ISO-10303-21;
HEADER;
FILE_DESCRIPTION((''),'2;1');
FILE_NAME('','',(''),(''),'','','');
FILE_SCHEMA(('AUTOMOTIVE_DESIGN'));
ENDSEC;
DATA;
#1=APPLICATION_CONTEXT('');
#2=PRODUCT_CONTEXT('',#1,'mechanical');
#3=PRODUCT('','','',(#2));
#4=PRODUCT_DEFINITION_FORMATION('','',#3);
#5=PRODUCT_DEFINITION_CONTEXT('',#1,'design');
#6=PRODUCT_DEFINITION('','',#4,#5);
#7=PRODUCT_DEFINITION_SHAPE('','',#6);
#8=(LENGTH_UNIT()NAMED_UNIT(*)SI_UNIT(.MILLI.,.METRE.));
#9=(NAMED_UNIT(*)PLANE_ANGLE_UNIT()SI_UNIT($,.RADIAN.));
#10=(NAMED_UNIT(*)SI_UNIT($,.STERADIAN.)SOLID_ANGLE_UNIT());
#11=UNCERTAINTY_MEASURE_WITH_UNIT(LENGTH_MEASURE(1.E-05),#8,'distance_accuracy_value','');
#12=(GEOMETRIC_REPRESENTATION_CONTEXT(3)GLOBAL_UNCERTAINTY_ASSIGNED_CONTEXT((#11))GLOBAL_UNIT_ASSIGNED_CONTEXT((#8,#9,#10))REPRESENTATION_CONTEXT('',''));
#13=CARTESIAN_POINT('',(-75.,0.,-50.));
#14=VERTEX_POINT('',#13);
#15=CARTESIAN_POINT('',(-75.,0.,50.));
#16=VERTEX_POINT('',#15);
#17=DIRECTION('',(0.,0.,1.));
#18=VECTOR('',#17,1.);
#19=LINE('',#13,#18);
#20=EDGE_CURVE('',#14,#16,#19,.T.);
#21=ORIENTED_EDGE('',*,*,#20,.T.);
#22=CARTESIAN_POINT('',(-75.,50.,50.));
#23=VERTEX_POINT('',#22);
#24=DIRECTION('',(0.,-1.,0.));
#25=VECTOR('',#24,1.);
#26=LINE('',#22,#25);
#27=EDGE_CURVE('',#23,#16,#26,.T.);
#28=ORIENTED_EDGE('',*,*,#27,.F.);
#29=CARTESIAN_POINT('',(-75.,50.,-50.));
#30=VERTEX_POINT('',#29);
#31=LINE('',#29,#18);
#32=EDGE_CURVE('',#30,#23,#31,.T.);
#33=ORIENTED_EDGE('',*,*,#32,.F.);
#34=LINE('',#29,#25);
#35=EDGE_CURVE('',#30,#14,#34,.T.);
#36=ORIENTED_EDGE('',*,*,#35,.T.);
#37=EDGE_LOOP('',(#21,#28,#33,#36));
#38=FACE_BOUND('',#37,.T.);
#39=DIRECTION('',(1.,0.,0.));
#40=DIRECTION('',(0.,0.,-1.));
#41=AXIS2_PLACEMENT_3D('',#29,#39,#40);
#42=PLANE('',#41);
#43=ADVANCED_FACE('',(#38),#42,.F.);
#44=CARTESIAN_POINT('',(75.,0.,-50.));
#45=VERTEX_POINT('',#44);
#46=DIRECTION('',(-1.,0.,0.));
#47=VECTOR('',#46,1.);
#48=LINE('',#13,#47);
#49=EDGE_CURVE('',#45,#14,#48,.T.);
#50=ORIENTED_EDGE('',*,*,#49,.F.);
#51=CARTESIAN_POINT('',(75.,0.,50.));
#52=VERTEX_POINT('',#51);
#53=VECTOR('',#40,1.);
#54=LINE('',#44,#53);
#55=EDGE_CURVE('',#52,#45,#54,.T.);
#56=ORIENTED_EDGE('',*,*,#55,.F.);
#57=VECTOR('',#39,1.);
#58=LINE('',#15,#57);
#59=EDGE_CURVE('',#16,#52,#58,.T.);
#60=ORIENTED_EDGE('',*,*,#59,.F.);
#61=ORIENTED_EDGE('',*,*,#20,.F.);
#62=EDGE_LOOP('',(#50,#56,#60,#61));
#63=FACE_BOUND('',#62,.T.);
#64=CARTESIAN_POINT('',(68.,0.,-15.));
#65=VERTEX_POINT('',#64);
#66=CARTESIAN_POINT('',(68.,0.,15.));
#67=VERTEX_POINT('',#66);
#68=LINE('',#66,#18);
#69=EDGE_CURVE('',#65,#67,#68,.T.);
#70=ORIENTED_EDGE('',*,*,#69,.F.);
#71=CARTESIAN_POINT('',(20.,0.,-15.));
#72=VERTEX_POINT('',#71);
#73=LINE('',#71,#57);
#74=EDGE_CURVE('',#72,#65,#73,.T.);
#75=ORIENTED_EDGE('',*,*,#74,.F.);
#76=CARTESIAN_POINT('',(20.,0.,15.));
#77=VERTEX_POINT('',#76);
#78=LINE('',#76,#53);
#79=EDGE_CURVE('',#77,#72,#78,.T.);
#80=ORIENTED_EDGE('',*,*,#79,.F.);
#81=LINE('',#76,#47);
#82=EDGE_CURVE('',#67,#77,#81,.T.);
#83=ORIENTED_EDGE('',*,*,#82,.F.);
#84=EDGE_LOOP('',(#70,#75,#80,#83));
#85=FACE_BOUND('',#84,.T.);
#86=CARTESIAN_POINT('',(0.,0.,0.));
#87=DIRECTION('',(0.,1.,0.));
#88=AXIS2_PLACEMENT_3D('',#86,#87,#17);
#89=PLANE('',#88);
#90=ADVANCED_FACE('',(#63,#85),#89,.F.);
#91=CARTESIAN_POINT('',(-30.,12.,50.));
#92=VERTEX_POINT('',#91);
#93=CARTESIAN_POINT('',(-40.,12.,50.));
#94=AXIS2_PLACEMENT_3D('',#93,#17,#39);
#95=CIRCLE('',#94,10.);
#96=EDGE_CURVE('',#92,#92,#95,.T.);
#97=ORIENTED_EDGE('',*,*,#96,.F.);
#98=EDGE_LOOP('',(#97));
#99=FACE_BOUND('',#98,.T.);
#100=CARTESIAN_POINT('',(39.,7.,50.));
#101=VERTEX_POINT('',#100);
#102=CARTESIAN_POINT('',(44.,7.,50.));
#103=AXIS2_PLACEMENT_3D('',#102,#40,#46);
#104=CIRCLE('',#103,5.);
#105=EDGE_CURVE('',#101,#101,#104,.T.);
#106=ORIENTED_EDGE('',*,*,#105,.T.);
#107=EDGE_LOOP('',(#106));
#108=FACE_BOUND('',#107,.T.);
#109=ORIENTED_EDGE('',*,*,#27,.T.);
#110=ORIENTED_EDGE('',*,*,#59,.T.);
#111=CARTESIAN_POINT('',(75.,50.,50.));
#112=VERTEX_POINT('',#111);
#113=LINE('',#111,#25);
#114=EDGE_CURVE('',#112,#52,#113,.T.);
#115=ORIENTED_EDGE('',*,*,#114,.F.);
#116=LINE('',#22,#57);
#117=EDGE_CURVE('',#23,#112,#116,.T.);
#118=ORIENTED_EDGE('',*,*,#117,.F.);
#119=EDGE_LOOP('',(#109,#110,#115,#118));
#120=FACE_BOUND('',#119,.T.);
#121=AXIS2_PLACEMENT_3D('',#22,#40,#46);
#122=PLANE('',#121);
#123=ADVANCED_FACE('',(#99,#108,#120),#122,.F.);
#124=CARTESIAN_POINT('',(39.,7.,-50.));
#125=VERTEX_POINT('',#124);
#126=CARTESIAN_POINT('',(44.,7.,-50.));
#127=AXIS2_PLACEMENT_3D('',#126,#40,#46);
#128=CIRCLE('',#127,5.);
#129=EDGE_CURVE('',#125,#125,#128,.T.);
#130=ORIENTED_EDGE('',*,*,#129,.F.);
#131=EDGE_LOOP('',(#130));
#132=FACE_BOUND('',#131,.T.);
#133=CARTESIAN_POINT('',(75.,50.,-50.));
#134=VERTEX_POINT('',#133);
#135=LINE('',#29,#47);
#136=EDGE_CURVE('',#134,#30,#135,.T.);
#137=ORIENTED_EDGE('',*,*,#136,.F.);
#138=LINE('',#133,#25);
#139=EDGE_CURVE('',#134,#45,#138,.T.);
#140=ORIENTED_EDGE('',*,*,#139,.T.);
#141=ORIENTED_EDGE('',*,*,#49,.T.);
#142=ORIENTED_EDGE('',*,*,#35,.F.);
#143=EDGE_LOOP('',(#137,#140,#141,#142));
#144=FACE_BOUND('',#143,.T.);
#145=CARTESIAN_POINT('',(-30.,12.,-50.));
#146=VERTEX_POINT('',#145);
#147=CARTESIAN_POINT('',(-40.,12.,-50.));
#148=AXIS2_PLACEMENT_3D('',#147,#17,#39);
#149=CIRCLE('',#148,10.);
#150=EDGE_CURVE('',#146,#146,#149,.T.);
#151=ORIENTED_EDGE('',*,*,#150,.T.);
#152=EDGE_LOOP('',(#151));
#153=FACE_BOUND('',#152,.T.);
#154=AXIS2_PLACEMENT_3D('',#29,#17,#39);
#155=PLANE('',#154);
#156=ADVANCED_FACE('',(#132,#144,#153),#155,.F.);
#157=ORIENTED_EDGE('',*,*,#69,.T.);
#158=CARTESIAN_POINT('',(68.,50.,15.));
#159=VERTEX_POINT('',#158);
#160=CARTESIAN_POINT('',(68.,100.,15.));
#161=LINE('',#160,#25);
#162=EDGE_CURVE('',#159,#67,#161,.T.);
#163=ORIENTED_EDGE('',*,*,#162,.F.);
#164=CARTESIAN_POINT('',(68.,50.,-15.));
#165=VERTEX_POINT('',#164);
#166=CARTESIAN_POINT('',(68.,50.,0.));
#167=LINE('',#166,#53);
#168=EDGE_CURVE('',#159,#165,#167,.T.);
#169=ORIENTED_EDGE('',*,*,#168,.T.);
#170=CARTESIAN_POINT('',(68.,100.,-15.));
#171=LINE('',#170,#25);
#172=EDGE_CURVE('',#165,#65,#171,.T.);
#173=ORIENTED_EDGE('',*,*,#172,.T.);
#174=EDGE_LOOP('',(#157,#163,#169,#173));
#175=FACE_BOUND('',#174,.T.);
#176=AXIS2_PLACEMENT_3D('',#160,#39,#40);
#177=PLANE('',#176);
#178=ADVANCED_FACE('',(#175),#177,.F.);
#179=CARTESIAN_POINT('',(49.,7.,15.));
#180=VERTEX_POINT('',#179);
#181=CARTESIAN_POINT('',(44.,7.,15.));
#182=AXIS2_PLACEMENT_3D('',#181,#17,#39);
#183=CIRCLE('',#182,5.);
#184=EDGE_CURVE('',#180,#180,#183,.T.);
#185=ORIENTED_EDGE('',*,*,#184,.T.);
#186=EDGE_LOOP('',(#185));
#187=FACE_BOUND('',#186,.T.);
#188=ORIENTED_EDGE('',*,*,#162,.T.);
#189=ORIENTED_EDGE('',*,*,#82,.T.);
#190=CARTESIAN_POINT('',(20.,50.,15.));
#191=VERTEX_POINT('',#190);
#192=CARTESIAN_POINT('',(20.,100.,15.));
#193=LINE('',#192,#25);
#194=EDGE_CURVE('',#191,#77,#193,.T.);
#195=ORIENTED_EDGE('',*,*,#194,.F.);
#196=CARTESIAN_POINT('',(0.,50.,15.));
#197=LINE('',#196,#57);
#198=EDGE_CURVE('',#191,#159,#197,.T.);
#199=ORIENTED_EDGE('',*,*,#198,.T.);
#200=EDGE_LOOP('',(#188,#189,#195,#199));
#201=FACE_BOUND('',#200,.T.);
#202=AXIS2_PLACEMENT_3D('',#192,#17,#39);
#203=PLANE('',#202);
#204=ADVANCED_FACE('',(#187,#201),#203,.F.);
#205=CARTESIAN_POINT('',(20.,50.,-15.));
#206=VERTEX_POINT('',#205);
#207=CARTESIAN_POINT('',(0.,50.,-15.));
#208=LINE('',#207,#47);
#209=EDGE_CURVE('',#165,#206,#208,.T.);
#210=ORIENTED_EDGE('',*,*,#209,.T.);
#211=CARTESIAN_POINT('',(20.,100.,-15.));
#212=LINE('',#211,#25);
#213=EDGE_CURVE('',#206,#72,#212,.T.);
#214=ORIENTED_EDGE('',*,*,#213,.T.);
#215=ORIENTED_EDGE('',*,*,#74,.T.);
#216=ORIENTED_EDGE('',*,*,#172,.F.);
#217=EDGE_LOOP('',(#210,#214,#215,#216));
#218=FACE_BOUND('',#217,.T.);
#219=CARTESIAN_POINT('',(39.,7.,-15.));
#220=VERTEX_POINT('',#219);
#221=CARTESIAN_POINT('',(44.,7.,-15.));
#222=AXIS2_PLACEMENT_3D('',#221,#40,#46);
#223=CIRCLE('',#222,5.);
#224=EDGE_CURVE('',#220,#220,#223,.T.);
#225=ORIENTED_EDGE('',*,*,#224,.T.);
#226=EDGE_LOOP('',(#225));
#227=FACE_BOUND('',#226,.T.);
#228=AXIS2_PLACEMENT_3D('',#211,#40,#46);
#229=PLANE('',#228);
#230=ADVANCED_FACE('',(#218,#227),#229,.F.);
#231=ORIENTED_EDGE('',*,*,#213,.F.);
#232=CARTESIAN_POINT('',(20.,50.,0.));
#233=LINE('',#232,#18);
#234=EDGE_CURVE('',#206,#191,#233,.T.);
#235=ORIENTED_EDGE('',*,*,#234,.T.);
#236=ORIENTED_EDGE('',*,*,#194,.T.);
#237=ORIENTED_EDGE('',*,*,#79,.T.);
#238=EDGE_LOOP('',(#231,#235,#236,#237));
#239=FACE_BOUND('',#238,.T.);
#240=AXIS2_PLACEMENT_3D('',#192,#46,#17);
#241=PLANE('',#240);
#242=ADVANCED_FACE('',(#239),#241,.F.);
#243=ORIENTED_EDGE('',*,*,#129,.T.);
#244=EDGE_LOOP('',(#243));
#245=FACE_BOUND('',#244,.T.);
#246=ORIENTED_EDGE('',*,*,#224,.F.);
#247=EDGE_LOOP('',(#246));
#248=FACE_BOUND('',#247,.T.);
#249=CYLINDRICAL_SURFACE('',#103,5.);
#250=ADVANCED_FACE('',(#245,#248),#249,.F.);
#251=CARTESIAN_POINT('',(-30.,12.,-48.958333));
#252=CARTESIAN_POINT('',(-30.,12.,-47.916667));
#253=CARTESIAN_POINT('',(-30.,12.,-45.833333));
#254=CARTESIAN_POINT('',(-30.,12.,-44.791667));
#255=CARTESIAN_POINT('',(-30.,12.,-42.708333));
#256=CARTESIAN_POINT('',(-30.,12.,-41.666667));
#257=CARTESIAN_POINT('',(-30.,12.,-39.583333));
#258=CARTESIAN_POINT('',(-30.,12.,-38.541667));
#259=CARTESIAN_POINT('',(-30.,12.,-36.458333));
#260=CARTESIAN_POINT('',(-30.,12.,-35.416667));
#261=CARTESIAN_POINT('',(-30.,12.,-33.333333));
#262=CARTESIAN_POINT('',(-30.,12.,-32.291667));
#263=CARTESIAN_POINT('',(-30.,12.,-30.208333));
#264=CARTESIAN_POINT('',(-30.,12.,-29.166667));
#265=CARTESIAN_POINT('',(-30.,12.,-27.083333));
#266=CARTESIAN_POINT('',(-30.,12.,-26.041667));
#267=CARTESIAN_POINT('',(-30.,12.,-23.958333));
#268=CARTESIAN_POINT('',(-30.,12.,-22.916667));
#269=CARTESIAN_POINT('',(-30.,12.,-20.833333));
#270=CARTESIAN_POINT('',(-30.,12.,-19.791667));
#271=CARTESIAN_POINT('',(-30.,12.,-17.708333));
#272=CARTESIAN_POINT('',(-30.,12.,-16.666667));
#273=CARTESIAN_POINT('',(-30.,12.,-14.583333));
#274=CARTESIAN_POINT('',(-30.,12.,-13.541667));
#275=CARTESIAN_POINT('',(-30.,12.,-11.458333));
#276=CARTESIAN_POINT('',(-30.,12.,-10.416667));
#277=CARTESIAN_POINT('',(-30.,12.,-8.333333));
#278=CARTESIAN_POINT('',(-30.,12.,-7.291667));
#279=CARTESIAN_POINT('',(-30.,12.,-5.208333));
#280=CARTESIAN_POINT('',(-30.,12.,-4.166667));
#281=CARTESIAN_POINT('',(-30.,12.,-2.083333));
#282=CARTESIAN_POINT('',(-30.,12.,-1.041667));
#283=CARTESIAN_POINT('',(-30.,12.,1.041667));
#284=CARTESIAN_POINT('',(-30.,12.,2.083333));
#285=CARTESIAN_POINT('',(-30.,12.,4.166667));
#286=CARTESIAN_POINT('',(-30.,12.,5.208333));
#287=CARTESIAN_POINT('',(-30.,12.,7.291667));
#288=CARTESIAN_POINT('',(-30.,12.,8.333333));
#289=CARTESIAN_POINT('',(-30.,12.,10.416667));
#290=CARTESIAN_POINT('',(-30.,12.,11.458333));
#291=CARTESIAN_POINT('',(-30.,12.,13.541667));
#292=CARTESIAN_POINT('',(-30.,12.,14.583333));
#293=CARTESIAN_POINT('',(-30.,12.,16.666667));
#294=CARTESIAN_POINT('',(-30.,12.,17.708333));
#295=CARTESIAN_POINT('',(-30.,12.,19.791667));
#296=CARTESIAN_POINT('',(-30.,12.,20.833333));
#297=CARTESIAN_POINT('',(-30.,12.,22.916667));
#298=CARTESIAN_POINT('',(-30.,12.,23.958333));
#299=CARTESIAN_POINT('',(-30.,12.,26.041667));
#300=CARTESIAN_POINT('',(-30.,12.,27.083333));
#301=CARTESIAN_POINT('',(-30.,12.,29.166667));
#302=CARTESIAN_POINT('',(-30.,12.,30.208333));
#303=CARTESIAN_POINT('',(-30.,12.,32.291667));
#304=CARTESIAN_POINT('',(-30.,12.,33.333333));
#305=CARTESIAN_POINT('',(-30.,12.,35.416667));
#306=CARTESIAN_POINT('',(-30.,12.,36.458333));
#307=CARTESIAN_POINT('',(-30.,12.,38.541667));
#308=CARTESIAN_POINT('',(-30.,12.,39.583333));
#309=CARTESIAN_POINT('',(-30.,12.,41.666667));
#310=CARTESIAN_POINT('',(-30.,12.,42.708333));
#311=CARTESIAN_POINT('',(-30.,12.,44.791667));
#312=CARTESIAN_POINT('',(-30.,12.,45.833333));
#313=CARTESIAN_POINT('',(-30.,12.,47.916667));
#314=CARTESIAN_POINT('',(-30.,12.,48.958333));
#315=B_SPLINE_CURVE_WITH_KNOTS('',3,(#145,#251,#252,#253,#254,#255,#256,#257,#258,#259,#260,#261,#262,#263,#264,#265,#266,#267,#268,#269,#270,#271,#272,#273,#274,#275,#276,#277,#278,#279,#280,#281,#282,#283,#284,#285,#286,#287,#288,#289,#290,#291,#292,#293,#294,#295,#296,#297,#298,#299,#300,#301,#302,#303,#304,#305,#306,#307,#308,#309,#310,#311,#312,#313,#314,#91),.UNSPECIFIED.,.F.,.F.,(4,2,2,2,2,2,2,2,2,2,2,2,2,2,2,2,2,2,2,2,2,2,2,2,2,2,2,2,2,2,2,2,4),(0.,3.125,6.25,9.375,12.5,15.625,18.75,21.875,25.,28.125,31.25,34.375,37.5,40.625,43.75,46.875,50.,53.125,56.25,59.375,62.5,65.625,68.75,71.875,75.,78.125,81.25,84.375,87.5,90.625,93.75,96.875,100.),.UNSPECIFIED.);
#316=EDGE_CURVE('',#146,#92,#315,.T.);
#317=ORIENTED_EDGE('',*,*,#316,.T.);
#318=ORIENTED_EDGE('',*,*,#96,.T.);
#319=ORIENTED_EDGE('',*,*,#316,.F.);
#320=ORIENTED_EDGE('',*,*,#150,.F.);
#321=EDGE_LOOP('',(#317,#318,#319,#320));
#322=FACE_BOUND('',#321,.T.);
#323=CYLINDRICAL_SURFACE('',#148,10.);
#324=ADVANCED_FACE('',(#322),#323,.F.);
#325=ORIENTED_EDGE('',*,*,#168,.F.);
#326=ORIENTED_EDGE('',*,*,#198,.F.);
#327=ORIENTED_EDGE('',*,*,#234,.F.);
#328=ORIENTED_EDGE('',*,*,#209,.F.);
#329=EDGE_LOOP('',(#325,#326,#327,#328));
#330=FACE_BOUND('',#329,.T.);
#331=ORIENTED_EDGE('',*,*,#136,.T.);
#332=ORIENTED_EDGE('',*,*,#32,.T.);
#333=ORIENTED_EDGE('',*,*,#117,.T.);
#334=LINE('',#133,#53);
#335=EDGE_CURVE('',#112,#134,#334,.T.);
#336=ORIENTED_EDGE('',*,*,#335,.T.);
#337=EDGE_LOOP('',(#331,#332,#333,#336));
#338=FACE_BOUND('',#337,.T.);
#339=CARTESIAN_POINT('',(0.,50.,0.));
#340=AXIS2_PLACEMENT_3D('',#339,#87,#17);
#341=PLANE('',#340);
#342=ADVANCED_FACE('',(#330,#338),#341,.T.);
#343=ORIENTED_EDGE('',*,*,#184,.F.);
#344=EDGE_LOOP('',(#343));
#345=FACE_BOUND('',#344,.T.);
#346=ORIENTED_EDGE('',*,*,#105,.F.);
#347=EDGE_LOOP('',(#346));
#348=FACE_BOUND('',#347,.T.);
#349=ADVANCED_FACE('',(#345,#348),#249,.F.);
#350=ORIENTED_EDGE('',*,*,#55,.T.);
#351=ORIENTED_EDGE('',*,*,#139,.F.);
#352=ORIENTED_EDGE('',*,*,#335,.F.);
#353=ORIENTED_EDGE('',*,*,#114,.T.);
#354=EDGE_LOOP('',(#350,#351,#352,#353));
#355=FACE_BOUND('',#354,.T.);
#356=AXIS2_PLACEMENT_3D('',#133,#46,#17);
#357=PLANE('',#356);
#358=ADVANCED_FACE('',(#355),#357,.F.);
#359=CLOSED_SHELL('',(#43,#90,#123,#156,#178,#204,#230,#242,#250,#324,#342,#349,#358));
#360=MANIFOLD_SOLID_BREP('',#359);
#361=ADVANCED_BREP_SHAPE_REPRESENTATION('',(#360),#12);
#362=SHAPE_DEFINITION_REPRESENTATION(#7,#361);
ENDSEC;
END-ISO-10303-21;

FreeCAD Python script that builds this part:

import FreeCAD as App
import Part
import Sketcher

doc = App.newDocument("Part")
body = doc.addObject("PartDesign::Body", "Body")

# Sketch on XZ plane
sketch1 = body.newObject("Sketcher::SketchObject", "Sketch")
sketch1.AttachmentSupport = (doc.getObject("XZ_Plane"), [""])
sketch1.MapMode = "FlatFace"
sketch1.addGeometry([
    Part.LineSegment(App.Vector(-75, -50, 0), App.Vector(-75, 50, 0)),
    Part.LineSegment(App.Vector(-75, 50, 0), App.Vector(75, 50, 0)),
    Part.LineSegment(App.Vector(75, 50, 0), App.Vector(75, -50, 0)),
    Part.LineSegment(App.Vector(75, -50, 0), App.Vector(-75, -50, 0)),
], False)
sketch1.addConstraint([
    Sketcher.Constraint("Coincident", 0, 2, 1, 1),
    Sketcher.Constraint("Coincident", 1, 2, 2, 1),
    Sketcher.Constraint("Coincident", 2, 2, 3, 1),
    Sketcher.Constraint("Coincident", 3, 2, 0, 1),
    Sketcher.Constraint("Vertical", 0),
    Sketcher.Constraint("Horizontal", 1),
    Sketcher.Constraint("Vertical", 2),
    Sketcher.Constraint("Horizontal", 3),
    Sketcher.Constraint("Symmetric", 0, 2, 2, 2, -1, 1),
    Sketcher.Constraint("DistanceX", 1, 1, 1, 2, 150.0),
    Sketcher.Constraint("DistanceY", 0, 1, 0, 2, 100.0),
])
pad1 = body.newObject("PartDesign::Pad", "Pad")
pad1.Profile = sketch1
pad1.Length = 50
pad1.Reversed = True

# Sketch on XY plane
sketch2 = body.newObject("Sketcher::SketchObject", "Sketch001")
sketch2.AttachmentSupport = (doc.getObject("XY_Plane"), [""])
sketch2.MapMode = "FlatFace"
sketch2.AttachmentOffset = App.Placement(App.Vector(0, 0, 50), App.Rotation())
sketch2.addGeometry(Part.Circle(App.Vector(-40, 12, 0), App.Vector(0, 0, 1), 10), False)
sketch2.addConstraint([
    Sketcher.Constraint("Diameter", 0, 20.0),
    Sketcher.Constraint("DistanceX", 0, 3, -1, 1, 40.0),
    Sketcher.Constraint("DistanceY", -1, 1, 0, 3, 12.0),
])
pocket1 = body.newObject("PartDesign::Pocket", "Pocket")
pocket1.Profile = sketch2
pocket1.Length = 100

# Sketch on XZ plane
sketch3 = body.newObject("Sketcher::SketchObject", "Sketch002")
sketch3.AttachmentSupport = (doc.getObject("XZ_Plane"), [""])
sketch3.MapMode = "FlatFace"
sketch3.addGeometry([
    Part.LineSegment(App.Vector(20, 15, 0), App.Vector(20, -15, 0)),
    Part.LineSegment(App.Vector(20, -15, 0), App.Vector(68, -15, 0)),
    Part.LineSegment(App.Vector(68, -15, 0), App.Vector(68, 15, 0)),
    Part.LineSegment(App.Vector(68, 15, 0), App.Vector(20, 15, 0)),
], False)
sketch3.addConstraint([
    Sketcher.Constraint("Coincident", 0, 2, 1, 1),
    Sketcher.Constraint("Coincident", 1, 2, 2, 1),
    Sketcher.Constraint("Coincident", 2, 2, 3, 1),
    Sketcher.Constraint("Coincident", 3, 2, 0, 1),
    Sketcher.Constraint("Vertical", 0),
    Sketcher.Constraint("Horizontal", 1),
    Sketcher.Constraint("Vertical", 2),
    Sketcher.Constraint("Horizontal", 3),
    Sketcher.Constraint("DistanceX", 1, 1, 1, 2, 48.0),
    Sketcher.Constraint("DistanceY", 0, 2, 0, 1, 30.0),
    Sketcher.Constraint("DistanceX", -1, 1, 0, 2, 20.0),
    Sketcher.Constraint("DistanceY", 0, 2, -1, 1, 15.0),
])
pocket2 = body.newObject("PartDesign::Pocket", "Pocket001")
pocket2.Profile = sketch3
pocket2.Length = 100

# Sketch on XY plane
sketch4 = body.newObject("Sketcher::SketchObject", "Sketch003")
sketch4.AttachmentSupport = (doc.getObject("XY_Plane"), [""])
sketch4.MapMode = "FlatFace"
sketch4.AttachmentOffset = App.Placement(App.Vector(0, 0, 15), App.Rotation())
sketch4.addGeometry(Part.Circle(App.Vector(44, 7, 0), App.Vector(0, 0, 1), 5), False)
sketch4.addConstraint([
    Sketcher.Constraint("Diameter", 0, 10.0),
    Sketcher.Constraint("DistanceX", -1, 1, 0, 3, 44.0),
    Sketcher.Constraint("DistanceY", -1, 1, 0, 3, 7.0),
])
pocket3 = body.newObject("PartDesign::Pocket", "Pocket002")
pocket3.Profile = sketch4
pocket3.Type = "ThroughAll"
pocket3.Midplane = True

doc.recompute()
